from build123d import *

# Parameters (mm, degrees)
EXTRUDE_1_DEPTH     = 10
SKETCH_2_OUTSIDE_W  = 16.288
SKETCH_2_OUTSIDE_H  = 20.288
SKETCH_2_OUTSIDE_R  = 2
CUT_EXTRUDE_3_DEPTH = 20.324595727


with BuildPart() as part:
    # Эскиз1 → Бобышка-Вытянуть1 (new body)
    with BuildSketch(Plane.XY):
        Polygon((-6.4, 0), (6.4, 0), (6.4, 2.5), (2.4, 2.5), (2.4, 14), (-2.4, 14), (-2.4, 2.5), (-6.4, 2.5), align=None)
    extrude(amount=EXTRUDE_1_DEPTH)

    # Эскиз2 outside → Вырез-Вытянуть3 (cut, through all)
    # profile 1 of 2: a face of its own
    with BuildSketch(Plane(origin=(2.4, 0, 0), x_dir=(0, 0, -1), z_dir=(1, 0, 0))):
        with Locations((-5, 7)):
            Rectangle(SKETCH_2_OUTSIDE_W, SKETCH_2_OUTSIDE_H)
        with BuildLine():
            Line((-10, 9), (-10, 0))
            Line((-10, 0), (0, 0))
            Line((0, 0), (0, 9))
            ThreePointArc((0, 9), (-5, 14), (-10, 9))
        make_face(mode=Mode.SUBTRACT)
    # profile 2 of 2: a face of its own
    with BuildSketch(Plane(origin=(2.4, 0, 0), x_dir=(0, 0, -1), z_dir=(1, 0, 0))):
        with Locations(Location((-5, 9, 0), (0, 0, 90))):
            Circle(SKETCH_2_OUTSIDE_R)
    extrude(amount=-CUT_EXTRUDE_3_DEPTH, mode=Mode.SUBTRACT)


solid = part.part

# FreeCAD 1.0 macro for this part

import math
import FreeCAD as App
import Part
import Sketcher
from FreeCAD import Vector
Q = App.Units.Quantity

doc = App.newDocument("Part")
params = doc.addObject("Spreadsheet::Sheet", "Params")
for row, (alias, value) in enumerate([
    ("sketch1_width", "4 mm"),
    ("sketch1_width2", "12.8 mm"),
    ("sketch1_height", "2.5 mm"),
    ("sketch1_height2", "11.5 mm"),
    ("pad1_length", "10 mm"),
    ("sketch2_diameter", "4 mm"),
    ("sketch2_radius", "5 mm"),
    ("sketch2_width", "9 mm"),
    ("pocket1_length", "20.324596 mm"),
], start=1):
    params.set(f"A{row}", alias)
    params.set(f"B{row}", "=" + value)
    params.setAlias(f"B{row}", alias)

body = doc.addObject("PartDesign::Body", "Body")

# Sketch on XY plane
sketch1 = doc.addObject("Sketcher::SketchObject", "Sketch")
body.addObject(sketch1)
sketch1.AttachmentSupport = (doc.XY_Plane, [""])
sketch1.MapMode = "FlatFace"
sketch1.addGeometry([
    Part.LineSegment(Vector(-6.4, 0, 0), Vector(6.4, 0, 0)),  # 0
    Part.LineSegment(Vector(6.4, 0, 0), Vector(6.4, 2.5, 0)),  # 1
    Part.LineSegment(Vector(6.4, 2.5, 0), Vector(2.4, 2.5, 0)),  # 2
    Part.LineSegment(Vector(2.4, 2.5, 0), Vector(2.4, 14, 0)),  # 3
    Part.LineSegment(Vector(2.4, 14, 0), Vector(-2.4, 14, 0)),  # 4
    Part.LineSegment(Vector(-2.4, 14, 0), Vector(-2.4, 2.5, 0)),  # 5
    Part.LineSegment(Vector(-2.4, 2.5, 0), Vector(-6.4, 2.5, 0)),  # 6
    Part.LineSegment(Vector(-6.4, 2.5, 0), Vector(-6.4, 0, 0)),  # 7
], False)
sketch1.addConstraint([
    Sketcher.Constraint("Coincident", 0, 2, 1, 1),
    Sketcher.Constraint("Coincident", 1, 2, 2, 1),
    Sketcher.Constraint("Coincident", 2, 2, 3, 1),
    Sketcher.Constraint("Coincident", 3, 2, 4, 1),
    Sketcher.Constraint("Coincident", 4, 2, 5, 1),
    Sketcher.Constraint("Coincident", 5, 2, 6, 1),
    Sketcher.Constraint("Coincident", 6, 2, 7, 1),
    Sketcher.Constraint("Coincident", 7, 2, 0, 1),
    Sketcher.Constraint("Horizontal", 0),
    Sketcher.Constraint("Vertical", 1),
    Sketcher.Constraint("Horizontal", 2),
    Sketcher.Constraint("Vertical", 3),
    Sketcher.Constraint("Horizontal", 4),
    Sketcher.Constraint("Vertical", 5),
    Sketcher.Constraint("Horizontal", 6),
    Sketcher.Constraint("Vertical", 7),
    Sketcher.Constraint("Symmetric", 0, 2, 7, 2, -1, 1),
    Sketcher.Constraint("Symmetric", 2, 2, 5, 2, -2),
    Sketcher.Constraint("DistanceX", 2, 2, 2, 1, Q("4 mm")),
    Sketcher.Constraint("DistanceX", 0, 1, 0, 2, Q("12.8 mm")),
    Sketcher.Constraint("DistanceY", 1, 1, 1, 2, Q("2.5 mm")),
    Sketcher.Constraint("DistanceY", 3, 1, 3, 2, Q("11.5 mm")),
])
sketch1.setExpression("Constraints[18]", "Params.sketch1_width")
sketch1.setExpression("Constraints[19]", "Params.sketch1_width2")
sketch1.setExpression("Constraints[20]", "Params.sketch1_height")
sketch1.setExpression("Constraints[21]", "Params.sketch1_height2")
pad1 = doc.addObject("PartDesign::Pad", "Pad")
body.addObject(pad1)
pad1.Profile = sketch1
pad1.setExpression("Length", "Params.pad1_length")

# Sketch on YZ plane
sketch2 = doc.addObject("Sketcher::SketchObject", "Sketch001")
body.addObject(sketch2)
sketch2.AttachmentSupport = (doc.YZ_Plane, [""])
sketch2.MapMode = "FlatFace"
sketch2.AttachmentOffset = App.Placement(Vector(0, 0, 2.4), App.Rotation())
sketch2.addGeometry([
    Part.LineSegment(Vector(17.144, 13.144, 0), Vector(-3.144, 13.144, 0)),  # 0
    Part.LineSegment(Vector(-3.144, 13.144, 0), Vector(-3.144, -3.144, 0)),  # 1
    Part.LineSegment(Vector(-3.144, -3.144, 0), Vector(17.144, -3.144, 0)),  # 2
    Part.LineSegment(Vector(17.144, -3.144, 0), Vector(17.144, 13.144, 0)),  # 3
    Part.LineSegment(Vector(0, 10, 0), Vector(9, 10, 0)),  # 4
    Part.ArcOfCircle(Part.Circle(Vector(9, 5, 0), Vector(0, 0, 1), 5), math.radians(-90), math.radians(90)),  # 5
    Part.LineSegment(Vector(9, 0, 0), Vector(0, 0, 0)),  # 6
    Part.LineSegment(Vector(0, 0, 0), Vector(0, 10, 0)),  # 7
    Part.Circle(Vector(9, 5, 0), Vector(0, 0, 1), 2),  # 8
], False)
sketch2.addConstraint([
    Sketcher.Constraint("Coincident", 0, 2, 1, 1),
    Sketcher.Constraint("Coincident", 1, 2, 2, 1),
    Sketcher.Constraint("Coincident", 2, 2, 3, 1),
    Sketcher.Constraint("Coincident", 3, 2, 0, 1),
    Sketcher.Constraint("Tangent", 4, 2, 5, 2),
    Sketcher.Constraint("Tangent", 5, 1, 6, 1),
    Sketcher.Constraint("Coincident", 6, 2, 7, 1),
    Sketcher.Constraint("Coincident", 7, 2, 4, 1),
    Sketcher.Constraint("Horizontal", 0),
    Sketcher.Constraint("Vertical", 1),
    Sketcher.Constraint("Horizontal", 2),
    Sketcher.Constraint("Vertical", 3),
    Sketcher.Constraint("Horizontal", 4),
    Sketcher.Constraint("Horizontal", 6),
    Sketcher.Constraint("Vertical", 7),
    Sketcher.Constraint("Coincident", 6, 2, -1, 1),
    Sketcher.Constraint("Coincident", 8, 3, 5, 3),
    Sketcher.Constraint("Diameter", 8, Q("4 mm")),
    Sketcher.Constraint("Radius", 5, Q("5 mm")),
    Sketcher.Constraint("DistanceX", 4, 1, 4, 2, Q("9 mm")),
    Sketcher.Constraint("DistanceX", 0, 2, 0, 1, Q("20.288 mm")),
    Sketcher.Constraint("DistanceY", 1, 2, 1, 1, Q("16.288 mm")),
    Sketcher.Constraint("DistanceX", 0, 2, -1, 1, Q("3.144 mm")),
    Sketcher.Constraint("DistanceY", -1, 1, 0, 2, Q("13.144 mm")),
])
sketch2.setExpression("Constraints[17]", "Params.sketch2_diameter")
sketch2.setExpression("Constraints[18]", "Params.sketch2_radius")
sketch2.setExpression("Constraints[19]", "Params.sketch2_width")
pocket1 = doc.addObject("PartDesign::Pocket", "Pocket")
body.addObject(pocket1)
pocket1.Profile = sketch2
pocket1.setExpression("Length", "Params.pocket1_length")

doc.recompute()
